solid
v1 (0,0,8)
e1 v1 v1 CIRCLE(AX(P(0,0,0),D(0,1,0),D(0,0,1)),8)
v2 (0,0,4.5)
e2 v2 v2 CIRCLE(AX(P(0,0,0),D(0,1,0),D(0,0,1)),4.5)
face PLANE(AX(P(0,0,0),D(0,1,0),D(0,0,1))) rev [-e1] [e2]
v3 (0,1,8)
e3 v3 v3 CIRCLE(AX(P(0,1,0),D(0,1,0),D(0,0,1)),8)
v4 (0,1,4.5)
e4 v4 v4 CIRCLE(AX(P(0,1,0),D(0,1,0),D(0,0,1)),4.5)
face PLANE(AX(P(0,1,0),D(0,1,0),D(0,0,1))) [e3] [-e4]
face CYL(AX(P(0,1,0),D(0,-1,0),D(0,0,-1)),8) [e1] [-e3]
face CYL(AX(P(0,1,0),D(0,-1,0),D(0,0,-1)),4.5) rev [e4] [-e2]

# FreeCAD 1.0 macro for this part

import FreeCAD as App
import Part
import Sketcher
from FreeCAD import Vector

doc = App.newDocument("Part")
body = doc.addObject("PartDesign::Body", "Body")

sketch1 = body.newObject("Sketcher::SketchObject", "Sketch")
sketch1.AttachmentSupport = (doc.getObject("XZ_Plane"), [""])
sketch1.MapMode = "FlatFace"
sketch1.addGeometry([
    Part.Circle(Vector(0, 0, 0), Vector(0, 0, 1), 8),
    Part.Circle(Vector(0, 0, 0), Vector(0, 0, 1), 4.5),
], False)
sketch1.addConstraint([
    Sketcher.Constraint("Coincident", 0, 3, -1, 1),
    Sketcher.Constraint("Coincident", 1, 3, -1, 1),
    Sketcher.Constraint("Diameter", 0, 16.0),
    Sketcher.Constraint("Diameter", 1, 9.0),
])
pad1 = body.newObject("PartDesign::Pad", "Pad")
pad1.Profile = sketch1
pad1.Length = 1
pad1.Reversed = True

doc.recompute()
